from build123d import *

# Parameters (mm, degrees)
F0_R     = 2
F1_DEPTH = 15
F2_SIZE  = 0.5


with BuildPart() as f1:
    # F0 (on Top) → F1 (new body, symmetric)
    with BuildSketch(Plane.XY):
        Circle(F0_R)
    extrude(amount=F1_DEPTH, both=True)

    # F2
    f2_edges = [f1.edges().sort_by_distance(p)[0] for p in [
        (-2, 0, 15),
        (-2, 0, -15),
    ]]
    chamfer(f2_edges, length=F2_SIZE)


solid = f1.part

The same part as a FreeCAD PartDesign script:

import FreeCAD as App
import Part
import Sketcher

V = App.Vector
Q = App.Units.Quantity


def edges_at(feature, points):
    """Names of the edges that pass closest to the given points."""
    edges = feature.Shape.Edges
    near = lambda p: min(range(len(edges)), key=lambda i: edges[i].distToShape(Part.Vertex(*p))[0])
    return sorted({f"Edge{near(p) + 1}" for p in points})

doc = App.newDocument("Part")
params = doc.addObject("Spreadsheet::Sheet", "Params")
for row, (alias, value) in enumerate([
    ("sketch1_diameter", "4 mm"),
    ("pad1_length", "30 mm"),
    ("chamfer_size", "0.5 mm"),
], start=1):
    params.set(f"A{row}", alias)
    params.set(f"B{row}", "=" + value)
    params.setAlias(f"B{row}", alias)

body = doc.addObject("PartDesign::Body", "Body")

# Sketch on XY plane
sketch1 = body.newObject("Sketcher::SketchObject", "Sketch")
sketch1.AttachmentSupport = (doc.getObject("XY_Plane"), [""])
sketch1.MapMode = "FlatFace"
sketch1.addGeometry(Part.Circle(V(0, 0, 0), V(0, 0, 1), 2), False)
sketch1.addConstraint(Sketcher.Constraint("Coincident", 0, 3, -1, 1))
sketch1.addConstraint(Sketcher.Constraint("Diameter", 0, Q("4 mm")))
sketch1.setExpression("Constraints[1]", "Params.sketch1_diameter")
pad1 = body.newObject("PartDesign::Pad", "Pad")
pad1.Profile = sketch1
pad1.setExpression("Length", "Params.pad1_length")
pad1.Midplane = True
doc.recompute()

chamfer = body.newObject("PartDesign::Chamfer", "Chamfer")
chamfer.Base = (pad1, edges_at(pad1, [(-2, 0, 15), (-2, 0, -15)]))
chamfer.setExpression("Size", "Params.chamfer_size")

doc.recompute()
